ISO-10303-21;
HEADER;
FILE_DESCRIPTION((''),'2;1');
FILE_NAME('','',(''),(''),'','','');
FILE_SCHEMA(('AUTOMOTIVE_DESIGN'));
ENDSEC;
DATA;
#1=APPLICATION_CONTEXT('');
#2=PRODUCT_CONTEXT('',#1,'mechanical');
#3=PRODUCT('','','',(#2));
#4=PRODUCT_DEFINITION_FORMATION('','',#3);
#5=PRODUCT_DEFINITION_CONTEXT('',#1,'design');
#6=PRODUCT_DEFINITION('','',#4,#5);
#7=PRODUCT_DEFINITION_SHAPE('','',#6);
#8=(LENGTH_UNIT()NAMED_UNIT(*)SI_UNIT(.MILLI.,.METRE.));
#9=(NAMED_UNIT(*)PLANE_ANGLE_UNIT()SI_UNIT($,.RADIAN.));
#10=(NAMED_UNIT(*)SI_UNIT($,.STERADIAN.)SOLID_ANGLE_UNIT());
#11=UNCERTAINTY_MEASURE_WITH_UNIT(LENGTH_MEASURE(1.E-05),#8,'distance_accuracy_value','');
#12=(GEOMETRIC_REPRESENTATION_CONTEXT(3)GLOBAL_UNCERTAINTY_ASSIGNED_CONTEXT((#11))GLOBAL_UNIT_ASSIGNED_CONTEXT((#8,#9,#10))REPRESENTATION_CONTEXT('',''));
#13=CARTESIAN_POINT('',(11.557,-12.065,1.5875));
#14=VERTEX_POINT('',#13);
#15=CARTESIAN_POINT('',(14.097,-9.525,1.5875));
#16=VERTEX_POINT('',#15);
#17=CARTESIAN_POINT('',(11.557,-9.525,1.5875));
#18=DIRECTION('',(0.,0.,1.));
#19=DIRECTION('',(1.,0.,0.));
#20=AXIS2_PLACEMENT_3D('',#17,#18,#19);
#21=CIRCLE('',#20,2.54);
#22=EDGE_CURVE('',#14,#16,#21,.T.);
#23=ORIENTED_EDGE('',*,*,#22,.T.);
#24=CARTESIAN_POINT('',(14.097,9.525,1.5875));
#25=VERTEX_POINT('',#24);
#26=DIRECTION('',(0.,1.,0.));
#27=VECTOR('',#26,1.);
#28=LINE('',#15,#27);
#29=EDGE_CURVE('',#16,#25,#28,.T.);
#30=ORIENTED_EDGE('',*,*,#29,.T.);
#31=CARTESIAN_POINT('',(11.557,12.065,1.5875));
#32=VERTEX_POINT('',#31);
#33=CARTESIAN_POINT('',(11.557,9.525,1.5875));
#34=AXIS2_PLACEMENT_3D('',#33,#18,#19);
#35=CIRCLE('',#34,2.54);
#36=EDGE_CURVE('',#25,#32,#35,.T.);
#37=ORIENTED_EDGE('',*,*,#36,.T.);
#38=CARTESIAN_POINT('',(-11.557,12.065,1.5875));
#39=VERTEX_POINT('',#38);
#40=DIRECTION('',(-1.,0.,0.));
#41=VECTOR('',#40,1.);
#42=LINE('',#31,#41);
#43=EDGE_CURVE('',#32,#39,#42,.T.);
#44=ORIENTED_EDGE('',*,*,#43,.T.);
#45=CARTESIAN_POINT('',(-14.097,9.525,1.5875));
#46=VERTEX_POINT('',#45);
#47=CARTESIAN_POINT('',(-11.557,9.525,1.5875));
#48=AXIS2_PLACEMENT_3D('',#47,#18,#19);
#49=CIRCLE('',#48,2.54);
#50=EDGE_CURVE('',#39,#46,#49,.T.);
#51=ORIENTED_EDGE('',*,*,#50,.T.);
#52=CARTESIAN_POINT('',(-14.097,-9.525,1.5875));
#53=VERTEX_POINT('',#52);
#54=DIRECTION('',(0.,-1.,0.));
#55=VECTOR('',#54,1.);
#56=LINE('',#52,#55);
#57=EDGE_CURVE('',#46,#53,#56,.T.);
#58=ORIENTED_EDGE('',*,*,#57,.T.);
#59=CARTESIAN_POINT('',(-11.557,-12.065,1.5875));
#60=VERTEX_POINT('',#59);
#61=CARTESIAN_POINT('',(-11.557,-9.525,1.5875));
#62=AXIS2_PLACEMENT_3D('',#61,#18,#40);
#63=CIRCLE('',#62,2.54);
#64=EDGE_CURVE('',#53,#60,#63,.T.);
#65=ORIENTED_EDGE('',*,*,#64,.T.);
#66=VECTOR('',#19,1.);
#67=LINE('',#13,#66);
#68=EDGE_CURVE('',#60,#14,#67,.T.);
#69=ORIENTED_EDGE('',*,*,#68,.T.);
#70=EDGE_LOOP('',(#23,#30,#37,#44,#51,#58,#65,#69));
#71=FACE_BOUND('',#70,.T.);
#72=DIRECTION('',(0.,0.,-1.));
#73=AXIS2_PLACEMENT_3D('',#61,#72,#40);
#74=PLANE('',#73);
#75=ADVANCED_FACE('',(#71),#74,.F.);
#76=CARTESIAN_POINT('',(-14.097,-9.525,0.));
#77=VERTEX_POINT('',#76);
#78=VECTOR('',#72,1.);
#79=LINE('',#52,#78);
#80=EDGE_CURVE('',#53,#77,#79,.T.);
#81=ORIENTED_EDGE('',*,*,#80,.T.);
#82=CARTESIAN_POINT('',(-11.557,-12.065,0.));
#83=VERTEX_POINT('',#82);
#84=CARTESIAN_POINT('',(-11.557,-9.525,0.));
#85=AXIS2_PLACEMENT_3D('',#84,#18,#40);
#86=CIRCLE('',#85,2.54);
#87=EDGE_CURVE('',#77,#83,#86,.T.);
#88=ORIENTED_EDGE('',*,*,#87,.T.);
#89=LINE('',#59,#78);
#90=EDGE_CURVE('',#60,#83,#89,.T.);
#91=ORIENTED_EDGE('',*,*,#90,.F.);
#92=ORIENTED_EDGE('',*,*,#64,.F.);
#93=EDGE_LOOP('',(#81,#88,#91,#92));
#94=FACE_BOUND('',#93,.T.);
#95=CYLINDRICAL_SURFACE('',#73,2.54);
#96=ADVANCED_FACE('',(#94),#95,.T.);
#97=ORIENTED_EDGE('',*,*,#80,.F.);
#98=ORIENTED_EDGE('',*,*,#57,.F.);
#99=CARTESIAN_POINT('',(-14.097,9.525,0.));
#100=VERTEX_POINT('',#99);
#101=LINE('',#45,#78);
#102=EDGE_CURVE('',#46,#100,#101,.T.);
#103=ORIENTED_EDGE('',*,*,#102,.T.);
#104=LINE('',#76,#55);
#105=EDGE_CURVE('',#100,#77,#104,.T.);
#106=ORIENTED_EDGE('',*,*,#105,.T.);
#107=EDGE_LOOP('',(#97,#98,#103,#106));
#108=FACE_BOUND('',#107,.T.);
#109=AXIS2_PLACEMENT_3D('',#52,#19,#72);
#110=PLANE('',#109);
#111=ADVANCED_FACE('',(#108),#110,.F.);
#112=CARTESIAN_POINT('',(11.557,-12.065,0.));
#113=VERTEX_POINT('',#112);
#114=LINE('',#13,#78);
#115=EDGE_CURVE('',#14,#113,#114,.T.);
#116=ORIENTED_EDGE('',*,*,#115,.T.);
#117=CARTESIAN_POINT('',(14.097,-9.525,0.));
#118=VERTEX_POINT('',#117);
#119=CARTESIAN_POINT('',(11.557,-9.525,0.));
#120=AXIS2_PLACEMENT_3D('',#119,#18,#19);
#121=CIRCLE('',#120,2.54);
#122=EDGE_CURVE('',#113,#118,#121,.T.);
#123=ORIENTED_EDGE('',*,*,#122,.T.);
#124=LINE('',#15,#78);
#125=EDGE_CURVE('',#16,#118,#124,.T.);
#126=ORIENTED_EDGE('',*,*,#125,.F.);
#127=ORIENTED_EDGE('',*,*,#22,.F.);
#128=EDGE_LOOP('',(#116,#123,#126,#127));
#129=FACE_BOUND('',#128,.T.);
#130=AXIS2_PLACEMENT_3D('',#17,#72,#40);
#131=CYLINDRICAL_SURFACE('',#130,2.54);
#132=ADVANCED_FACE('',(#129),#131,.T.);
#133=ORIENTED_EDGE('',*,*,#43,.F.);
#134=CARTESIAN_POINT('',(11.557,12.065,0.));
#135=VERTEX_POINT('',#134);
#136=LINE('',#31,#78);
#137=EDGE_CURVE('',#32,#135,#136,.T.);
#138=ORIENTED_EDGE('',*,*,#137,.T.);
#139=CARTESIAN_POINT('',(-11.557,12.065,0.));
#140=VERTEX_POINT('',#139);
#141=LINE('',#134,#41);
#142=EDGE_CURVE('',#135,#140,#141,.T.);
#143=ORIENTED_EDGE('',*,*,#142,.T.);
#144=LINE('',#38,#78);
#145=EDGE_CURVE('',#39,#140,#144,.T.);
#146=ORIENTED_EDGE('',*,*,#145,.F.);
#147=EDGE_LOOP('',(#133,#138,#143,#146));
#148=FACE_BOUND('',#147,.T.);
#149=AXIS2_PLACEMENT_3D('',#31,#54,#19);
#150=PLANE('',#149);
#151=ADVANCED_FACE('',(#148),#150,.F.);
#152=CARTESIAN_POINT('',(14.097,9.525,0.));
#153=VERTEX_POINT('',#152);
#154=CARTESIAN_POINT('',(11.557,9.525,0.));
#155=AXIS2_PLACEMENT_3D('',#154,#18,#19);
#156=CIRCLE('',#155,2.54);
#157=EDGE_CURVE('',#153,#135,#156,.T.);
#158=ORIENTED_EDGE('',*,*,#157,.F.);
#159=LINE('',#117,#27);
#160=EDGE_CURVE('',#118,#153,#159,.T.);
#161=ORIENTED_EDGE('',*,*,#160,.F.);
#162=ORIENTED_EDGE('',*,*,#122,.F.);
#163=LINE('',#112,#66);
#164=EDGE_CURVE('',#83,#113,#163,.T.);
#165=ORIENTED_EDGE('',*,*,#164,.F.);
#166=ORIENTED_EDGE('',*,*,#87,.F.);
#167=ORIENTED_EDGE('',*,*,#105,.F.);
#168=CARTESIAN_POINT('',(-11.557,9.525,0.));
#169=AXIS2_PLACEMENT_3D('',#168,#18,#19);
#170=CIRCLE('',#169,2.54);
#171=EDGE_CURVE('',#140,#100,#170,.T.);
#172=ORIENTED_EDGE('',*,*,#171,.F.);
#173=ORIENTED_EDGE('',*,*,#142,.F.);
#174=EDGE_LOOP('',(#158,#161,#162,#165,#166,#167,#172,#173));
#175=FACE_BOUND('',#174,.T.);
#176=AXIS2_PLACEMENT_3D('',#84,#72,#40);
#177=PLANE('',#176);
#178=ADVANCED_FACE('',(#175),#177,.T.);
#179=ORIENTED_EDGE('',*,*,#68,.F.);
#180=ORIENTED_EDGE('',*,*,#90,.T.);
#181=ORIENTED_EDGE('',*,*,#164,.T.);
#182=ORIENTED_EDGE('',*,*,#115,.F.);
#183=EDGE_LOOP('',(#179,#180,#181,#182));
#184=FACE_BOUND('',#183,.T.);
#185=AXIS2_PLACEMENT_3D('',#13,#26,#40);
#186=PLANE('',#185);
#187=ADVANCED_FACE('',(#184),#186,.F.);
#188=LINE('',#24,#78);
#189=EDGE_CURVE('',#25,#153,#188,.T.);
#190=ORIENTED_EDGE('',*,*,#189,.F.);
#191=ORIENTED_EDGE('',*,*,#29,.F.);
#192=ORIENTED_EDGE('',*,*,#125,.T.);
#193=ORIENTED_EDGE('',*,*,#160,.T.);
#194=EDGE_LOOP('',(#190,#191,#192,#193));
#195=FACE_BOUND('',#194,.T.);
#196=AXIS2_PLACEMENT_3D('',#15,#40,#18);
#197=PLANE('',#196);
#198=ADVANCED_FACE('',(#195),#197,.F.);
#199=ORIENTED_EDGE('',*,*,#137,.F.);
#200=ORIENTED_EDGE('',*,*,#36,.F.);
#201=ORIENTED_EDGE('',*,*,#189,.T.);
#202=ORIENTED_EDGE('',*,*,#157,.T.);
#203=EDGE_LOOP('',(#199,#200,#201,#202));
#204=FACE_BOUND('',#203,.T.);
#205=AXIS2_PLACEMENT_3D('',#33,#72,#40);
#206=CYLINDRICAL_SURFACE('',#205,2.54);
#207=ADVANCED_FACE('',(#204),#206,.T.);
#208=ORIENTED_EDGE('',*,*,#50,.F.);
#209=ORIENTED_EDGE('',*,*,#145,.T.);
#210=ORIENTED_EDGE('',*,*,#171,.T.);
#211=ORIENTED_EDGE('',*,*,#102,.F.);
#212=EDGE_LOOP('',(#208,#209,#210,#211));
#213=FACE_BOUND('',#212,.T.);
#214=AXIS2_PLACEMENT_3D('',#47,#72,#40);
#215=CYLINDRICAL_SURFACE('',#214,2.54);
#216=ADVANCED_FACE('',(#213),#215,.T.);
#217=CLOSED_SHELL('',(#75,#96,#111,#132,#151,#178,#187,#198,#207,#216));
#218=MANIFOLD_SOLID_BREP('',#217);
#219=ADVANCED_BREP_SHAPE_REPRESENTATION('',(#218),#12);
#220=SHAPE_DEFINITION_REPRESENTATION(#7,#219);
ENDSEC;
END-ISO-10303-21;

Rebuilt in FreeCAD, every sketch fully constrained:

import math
import FreeCAD as App
import Part
import Sketcher

V = App.Vector
Q = App.Units.Quantity

doc = App.newDocument("Part")
body = doc.addObject("PartDesign::Body", "Body")

# Sketch on XY plane
sketch1 = doc.addObject("Sketcher::SketchObject", "Sketch")
body.addObject(sketch1)
sketch1.AttachmentSupport = (doc.XY_Plane, [""])
sketch1.MapMode = "FlatFace"
sketch1.addGeometry(Part.LineSegment(V(-11.6, -12.1, 0), V(11.6, -12.1, 0)), False)
sketch1.addGeometry(Part.ArcOfCircle(Part.Circle(V(11.6, -9.5, 0), V(0, 0, 1), 2.5), math.radians(-90), math.radians(0)), False)
sketch1.addGeometry(Part.LineSegment(V(14.1, -9.5, 0), V(14.1, 9.5, 0)), False)
sketch1.addGeometry(Part.ArcOfCircle(Part.Circle(V(11.6, 9.5, 0), V(0, 0, 1), 2.5), math.radians(0), math.radians(90)), False)
sketch1.addGeometry(Part.LineSegment(V(11.6, 12.1, 0), V(-11.6, 12.1, 0)), False)
sketch1.addGeometry(Part.ArcOfCircle(Part.Circle(V(-11.6, 9.5, 0), V(0, 0, 1), 2.5), math.radians(90), math.radians(180)), False)
sketch1.addGeometry(Part.LineSegment(V(-14.1, 9.5, 0), V(-14.1, -9.5, 0)), False)
sketch1.addGeometry(Part.ArcOfCircle(Part.Circle(V(-11.6, -9.5, 0), V(0, 0, 1), 2.5), math.radians(-180), math.radians(-90)), False)
sketch1.addConstraint(Sketcher.Constraint("Tangent", 0, 2, 1, 1))
sketch1.addConstraint(Sketcher.Constraint("Tangent", 1, 2, 2, 1))
sketch1.addConstraint(Sketcher.Constraint("Tangent", 2, 2, 3, 1))
sketch1.addConstraint(Sketcher.Constraint("Tangent", 3, 2, 4, 1))
sketch1.addConstraint(Sketcher.Constraint("Tangent", 4, 2, 5, 1))
sketch1.addConstraint(Sketcher.Constraint("Tangent", 5, 2, 6, 1))
sketch1.addConstraint(Sketcher.Constraint("Tangent", 6, 2, 7, 1))
sketch1.addConstraint(Sketcher.Constraint("Tangent", 7, 2, 0, 1))
sketch1.addConstraint(Sketcher.Constraint("Horizontal", 0))
sketch1.addConstraint(Sketcher.Constraint("Vertical", 2))
sketch1.addConstraint(Sketcher.Constraint("Horizontal", 4))
sketch1.addConstraint(Sketcher.Constraint("Vertical", 6))
sketch1.addConstraint(Sketcher.Constraint("Equal", 1, 3))
sketch1.addConstraint(Sketcher.Constraint("Equal", 3, 5))
sketch1.addConstraint(Sketcher.Constraint("Equal", 5, 7))
sketch1.addConstraint(Sketcher.Constraint("Symmetric", 1, 3, 5, 3, -1, 1))
sketch1.addConstraint(Sketcher.Constraint("Radius", 1, Q("0.1 in")))
sketch1.addConstraint(Sketcher.Constraint("DistanceX", 0, 1, 0, 2, Q("0.91 in")))
sketch1.addConstraint(Sketcher.Constraint("DistanceY", 2, 1, 2, 2, Q("0.75 in")))
pad1 = doc.addObject("PartDesign::Pad", "Pad")
body.addObject(pad1)
pad1.Profile = sketch1
pad1.Length = Q("0.0625 in")

doc.recompute()
